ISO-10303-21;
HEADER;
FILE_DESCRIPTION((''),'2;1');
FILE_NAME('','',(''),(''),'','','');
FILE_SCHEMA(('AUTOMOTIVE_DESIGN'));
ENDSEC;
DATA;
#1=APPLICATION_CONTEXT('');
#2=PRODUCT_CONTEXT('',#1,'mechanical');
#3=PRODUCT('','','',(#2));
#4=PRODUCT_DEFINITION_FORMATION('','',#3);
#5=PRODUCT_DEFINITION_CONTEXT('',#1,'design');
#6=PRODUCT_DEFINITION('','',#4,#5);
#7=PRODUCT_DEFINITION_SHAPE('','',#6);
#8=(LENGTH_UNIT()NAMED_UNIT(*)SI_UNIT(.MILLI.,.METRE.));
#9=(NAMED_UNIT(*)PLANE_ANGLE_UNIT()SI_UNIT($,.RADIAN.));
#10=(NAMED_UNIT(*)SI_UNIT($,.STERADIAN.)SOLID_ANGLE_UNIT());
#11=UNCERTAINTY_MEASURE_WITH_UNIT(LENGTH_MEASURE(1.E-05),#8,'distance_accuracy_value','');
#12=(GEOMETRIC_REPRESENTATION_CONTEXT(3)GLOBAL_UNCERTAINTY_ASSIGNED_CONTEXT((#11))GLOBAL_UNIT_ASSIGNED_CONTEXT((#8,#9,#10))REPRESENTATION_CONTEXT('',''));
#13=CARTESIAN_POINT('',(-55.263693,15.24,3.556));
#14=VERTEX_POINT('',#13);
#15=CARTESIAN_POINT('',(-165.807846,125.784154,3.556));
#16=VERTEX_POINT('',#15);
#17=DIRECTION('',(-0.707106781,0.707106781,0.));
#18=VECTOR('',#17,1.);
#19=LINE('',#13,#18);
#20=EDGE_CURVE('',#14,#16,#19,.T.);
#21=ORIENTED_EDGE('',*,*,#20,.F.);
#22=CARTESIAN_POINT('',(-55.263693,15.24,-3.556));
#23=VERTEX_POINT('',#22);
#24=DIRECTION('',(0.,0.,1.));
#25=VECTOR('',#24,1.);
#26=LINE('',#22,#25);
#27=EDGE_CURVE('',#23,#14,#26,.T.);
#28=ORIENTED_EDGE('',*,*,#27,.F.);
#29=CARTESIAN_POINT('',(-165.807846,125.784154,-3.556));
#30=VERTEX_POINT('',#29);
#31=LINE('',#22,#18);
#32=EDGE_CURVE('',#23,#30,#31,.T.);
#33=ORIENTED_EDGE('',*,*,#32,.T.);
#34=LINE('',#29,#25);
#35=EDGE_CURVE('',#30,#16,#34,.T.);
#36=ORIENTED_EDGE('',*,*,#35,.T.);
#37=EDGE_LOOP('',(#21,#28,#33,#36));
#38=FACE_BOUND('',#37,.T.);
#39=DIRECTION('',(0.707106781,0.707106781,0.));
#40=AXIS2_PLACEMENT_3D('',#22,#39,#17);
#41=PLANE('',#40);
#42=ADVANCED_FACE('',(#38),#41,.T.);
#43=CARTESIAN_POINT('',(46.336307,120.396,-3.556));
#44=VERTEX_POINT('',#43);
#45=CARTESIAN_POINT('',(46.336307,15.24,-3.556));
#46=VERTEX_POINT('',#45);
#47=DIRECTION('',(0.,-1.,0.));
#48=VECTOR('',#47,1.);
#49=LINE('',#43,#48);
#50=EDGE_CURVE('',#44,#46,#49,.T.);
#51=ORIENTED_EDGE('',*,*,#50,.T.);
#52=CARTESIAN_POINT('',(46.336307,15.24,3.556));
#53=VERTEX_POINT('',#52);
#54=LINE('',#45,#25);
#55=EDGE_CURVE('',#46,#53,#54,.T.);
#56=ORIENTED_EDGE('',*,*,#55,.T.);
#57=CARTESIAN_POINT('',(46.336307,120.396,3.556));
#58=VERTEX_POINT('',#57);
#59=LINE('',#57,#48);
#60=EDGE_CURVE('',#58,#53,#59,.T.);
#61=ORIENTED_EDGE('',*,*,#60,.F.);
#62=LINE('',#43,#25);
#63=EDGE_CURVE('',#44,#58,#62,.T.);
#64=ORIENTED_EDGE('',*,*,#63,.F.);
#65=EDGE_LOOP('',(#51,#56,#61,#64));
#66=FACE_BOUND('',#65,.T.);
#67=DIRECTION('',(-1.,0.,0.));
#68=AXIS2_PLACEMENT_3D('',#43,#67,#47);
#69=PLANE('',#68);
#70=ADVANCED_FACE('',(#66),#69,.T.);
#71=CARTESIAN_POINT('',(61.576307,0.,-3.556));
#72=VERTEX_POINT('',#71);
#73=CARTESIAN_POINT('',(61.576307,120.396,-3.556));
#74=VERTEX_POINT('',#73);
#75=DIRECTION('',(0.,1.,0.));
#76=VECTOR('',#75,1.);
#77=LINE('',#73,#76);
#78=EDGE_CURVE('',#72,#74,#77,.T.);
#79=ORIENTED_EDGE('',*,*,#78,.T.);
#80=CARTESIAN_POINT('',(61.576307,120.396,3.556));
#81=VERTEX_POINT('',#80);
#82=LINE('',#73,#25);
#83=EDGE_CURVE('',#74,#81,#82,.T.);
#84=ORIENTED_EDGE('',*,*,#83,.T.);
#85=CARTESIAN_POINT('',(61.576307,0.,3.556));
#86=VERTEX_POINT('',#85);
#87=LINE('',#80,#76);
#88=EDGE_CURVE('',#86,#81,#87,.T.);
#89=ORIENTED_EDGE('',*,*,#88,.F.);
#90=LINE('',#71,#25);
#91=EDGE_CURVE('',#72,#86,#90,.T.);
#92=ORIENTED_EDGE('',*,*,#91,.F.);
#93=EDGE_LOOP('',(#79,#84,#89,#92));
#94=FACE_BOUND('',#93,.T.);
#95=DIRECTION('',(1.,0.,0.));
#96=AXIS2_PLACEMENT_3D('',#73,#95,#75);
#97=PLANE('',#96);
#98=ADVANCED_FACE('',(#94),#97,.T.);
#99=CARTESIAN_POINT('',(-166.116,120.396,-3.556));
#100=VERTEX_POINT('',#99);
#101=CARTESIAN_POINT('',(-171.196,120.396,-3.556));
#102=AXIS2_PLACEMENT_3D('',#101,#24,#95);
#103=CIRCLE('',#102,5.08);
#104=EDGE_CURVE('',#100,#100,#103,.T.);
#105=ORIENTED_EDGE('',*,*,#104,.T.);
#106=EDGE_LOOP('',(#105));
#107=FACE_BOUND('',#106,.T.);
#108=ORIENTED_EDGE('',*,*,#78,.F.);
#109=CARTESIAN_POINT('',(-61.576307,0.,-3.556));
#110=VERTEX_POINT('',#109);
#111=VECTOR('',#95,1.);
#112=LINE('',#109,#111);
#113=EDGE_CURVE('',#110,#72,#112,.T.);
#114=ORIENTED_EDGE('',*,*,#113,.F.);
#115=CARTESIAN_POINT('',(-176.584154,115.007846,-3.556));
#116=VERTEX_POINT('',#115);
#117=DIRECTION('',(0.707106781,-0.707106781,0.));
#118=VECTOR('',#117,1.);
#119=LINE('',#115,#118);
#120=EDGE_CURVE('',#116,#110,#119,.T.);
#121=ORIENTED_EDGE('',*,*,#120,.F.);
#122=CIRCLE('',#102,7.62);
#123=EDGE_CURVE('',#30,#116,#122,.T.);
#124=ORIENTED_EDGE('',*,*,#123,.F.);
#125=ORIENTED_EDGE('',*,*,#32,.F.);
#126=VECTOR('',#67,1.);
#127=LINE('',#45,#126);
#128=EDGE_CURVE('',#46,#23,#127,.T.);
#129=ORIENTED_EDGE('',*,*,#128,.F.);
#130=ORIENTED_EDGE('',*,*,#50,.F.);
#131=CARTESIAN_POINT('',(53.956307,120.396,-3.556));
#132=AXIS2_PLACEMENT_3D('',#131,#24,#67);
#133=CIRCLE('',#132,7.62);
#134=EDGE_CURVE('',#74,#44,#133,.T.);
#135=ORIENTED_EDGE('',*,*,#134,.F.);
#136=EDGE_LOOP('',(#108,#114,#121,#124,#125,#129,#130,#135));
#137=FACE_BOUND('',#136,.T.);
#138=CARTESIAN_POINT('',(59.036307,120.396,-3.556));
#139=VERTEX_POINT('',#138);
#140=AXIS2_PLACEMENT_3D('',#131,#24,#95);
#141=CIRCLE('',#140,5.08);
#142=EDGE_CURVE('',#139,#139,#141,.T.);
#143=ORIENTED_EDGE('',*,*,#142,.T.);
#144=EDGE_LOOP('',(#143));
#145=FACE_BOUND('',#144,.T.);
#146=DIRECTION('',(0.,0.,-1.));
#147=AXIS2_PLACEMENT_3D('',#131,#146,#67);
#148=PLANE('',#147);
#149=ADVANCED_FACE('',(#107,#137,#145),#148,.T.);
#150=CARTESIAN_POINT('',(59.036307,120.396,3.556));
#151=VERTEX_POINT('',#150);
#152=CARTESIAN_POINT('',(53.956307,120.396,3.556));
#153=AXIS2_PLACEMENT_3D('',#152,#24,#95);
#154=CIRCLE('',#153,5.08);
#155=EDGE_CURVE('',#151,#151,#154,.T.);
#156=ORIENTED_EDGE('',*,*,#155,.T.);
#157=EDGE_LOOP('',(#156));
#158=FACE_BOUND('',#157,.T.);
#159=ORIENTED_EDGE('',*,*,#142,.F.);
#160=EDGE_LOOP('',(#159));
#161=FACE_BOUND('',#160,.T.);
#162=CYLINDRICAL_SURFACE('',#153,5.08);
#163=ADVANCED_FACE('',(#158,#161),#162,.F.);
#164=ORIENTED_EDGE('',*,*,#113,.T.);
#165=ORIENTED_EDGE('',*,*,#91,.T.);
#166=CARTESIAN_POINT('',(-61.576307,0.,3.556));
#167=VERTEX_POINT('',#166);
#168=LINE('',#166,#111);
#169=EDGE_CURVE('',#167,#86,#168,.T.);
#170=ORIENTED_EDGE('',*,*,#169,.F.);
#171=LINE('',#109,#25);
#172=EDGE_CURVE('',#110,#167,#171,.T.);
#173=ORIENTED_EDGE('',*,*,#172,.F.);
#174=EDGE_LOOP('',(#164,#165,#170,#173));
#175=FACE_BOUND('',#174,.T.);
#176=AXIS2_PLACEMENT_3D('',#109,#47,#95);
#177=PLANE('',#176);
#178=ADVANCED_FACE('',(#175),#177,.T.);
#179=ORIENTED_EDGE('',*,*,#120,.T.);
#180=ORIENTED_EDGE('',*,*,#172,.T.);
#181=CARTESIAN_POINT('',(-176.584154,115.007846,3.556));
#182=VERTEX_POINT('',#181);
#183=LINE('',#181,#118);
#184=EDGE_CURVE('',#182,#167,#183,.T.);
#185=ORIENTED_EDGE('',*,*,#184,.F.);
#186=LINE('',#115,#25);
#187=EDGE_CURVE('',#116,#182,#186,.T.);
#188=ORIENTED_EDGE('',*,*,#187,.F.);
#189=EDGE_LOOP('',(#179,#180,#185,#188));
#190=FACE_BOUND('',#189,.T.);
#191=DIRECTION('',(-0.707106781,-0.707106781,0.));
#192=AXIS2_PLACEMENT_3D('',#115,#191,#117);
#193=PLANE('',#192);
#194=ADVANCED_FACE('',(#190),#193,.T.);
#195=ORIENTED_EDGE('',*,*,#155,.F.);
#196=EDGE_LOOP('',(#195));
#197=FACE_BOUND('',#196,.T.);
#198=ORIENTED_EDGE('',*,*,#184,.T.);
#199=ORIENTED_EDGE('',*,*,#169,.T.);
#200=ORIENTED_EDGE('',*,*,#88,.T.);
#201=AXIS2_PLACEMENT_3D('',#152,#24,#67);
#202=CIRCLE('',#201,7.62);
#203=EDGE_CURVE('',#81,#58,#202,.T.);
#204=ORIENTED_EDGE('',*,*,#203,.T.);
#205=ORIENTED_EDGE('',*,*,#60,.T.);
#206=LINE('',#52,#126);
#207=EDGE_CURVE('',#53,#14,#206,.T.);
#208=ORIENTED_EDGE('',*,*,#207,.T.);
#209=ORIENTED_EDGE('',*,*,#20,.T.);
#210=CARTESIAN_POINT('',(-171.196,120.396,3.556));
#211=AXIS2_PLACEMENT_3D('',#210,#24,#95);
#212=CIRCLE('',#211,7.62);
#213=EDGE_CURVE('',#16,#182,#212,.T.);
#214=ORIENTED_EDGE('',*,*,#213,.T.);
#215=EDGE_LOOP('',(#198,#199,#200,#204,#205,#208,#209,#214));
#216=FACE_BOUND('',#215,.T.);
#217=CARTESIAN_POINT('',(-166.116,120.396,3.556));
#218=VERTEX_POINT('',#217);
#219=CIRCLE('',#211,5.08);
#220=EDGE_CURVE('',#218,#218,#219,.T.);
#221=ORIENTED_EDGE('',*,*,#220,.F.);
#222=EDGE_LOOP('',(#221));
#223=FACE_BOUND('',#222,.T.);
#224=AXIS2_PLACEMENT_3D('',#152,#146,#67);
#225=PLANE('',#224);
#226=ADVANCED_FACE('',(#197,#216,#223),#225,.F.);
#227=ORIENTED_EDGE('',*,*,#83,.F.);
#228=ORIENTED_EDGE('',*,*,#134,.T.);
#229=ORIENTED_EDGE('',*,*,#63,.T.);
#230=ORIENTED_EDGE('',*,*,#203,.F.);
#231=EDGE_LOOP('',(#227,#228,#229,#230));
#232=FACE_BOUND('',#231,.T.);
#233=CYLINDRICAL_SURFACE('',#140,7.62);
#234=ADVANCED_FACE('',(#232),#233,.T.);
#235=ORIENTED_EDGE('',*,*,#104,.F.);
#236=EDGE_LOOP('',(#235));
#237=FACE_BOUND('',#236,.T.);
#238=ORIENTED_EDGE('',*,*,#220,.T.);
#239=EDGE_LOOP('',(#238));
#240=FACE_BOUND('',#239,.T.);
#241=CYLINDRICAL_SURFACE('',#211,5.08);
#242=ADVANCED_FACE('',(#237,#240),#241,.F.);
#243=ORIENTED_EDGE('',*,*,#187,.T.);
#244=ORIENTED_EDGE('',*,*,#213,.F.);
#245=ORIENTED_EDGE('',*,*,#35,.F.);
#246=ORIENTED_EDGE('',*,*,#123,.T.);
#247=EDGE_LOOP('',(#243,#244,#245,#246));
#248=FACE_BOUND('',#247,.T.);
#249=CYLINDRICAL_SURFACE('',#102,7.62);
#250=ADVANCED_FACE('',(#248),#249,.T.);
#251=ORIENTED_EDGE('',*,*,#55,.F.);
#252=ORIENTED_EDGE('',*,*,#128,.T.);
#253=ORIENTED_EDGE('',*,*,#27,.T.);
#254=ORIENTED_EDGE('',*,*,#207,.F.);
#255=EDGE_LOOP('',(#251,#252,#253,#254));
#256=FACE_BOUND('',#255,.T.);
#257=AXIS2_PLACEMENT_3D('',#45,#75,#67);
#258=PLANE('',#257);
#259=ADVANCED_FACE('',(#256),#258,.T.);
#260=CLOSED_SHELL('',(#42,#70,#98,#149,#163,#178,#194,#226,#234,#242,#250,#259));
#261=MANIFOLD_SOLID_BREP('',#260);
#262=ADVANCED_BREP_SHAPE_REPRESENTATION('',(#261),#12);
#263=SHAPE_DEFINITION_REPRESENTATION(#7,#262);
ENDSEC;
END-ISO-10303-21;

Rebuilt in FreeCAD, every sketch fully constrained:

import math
import FreeCAD as App
import Part
import Sketcher
from FreeCAD import Vector
Q = App.Units.Quantity

doc = App.newDocument("Part")
params = doc.addObject("Spreadsheet::Sheet", "Params")
for row, (alias, value) in enumerate([
    ("sketch1_radius", "0.3 in"),
    ("sketch1_width", "4 in"),
    ("sketch1_height", "4.14 in"),
    ("sketch1_height2", "4.74 in"),
    ("pad1_length", "0.14 in"),
    ("pad1_length2", "0.14 in"),
    ("sketch2_diameter", "0.4 in"),
    ("hole_diameter", "0.4 in"),
], start=1):
    params.set(f"A{row}", alias)
    params.set(f"B{row}", "=" + value)
    params.setAlias(f"B{row}", alias)

body = doc.addObject("PartDesign::Body", "Body")

sketch1 = body.newObject("Sketcher::SketchObject", "Sketch")
sketch1.AttachmentSupport = (doc.getObject("XY_Plane"), [""])
sketch1.MapMode = "FlatFace"
sketch1.addGeometry([
    Part.LineSegment(Vector(46.336307, 120.396, 0), Vector(46.336307, 15.24, 0)),
    Part.LineSegment(Vector(46.336307, 15.24, 0), Vector(-55.263693, 15.24, 0)),
    Part.LineSegment(Vector(-55.263693, 15.24, 0), Vector(-165.807846, 125.784154, 0)),
    Part.ArcOfCircle(Part.Circle(Vector(-171.196, 120.396, 0), Vector(0, 0, 1), 7.62), math.radians(45), math.radians(225)),
    Part.LineSegment(Vector(-176.584154, 115.007846, 0), Vector(-61.576307, 0, 0)),
    Part.LineSegment(Vector(-61.576307, 0, 0), Vector(61.576307, 0, 0)),
    Part.LineSegment(Vector(61.576307, 0, 0), Vector(61.576307, 120.396, 0)),
    Part.ArcOfCircle(Part.Circle(Vector(53.956307, 120.396, 0), Vector(0, 0, 1), 7.62), math.radians(0), math.radians(180)),
], False)
sketch1.addConstraint([
    Sketcher.Constraint("Coincident", 0, 2, 1, 1),
    Sketcher.Constraint("Coincident", 1, 2, 2, 1),
    Sketcher.Constraint("Tangent", 2, 2, 3, 1),
    Sketcher.Constraint("Tangent", 3, 2, 4, 1),
    Sketcher.Constraint("Coincident", 4, 2, 5, 1),
    Sketcher.Constraint("Coincident", 5, 2, 6, 1),
    Sketcher.Constraint("Tangent", 6, 2, 7, 1),
    Sketcher.Constraint("Tangent", 7, 2, 0, 1),
    Sketcher.Constraint("Vertical", 0),
    Sketcher.Constraint("Horizontal", 1),
    Sketcher.Constraint("Horizontal", 5),
    Sketcher.Constraint("Vertical", 6),
    Sketcher.Constraint("Equal", 3, 7),
    Sketcher.Constraint("Symmetric", 4, 2, 5, 2, -1, 1),
    Sketcher.Constraint("Parallel", 2, 4),
    Sketcher.Constraint("Horizontal", 3, 3, 7, 3),
    Sketcher.Constraint("Radius", 3, Q("0.3 in")),
    Sketcher.Constraint("DistanceX", 1, 2, 1, 1, Q("4 in")),
    Sketcher.Constraint("Angle", 2, Q("135 deg")),
    Sketcher.Constraint("DistanceY", 0, 2, 0, 1, Q("4.14 in")),
    Sketcher.Constraint("DistanceY", 6, 1, 6, 2, Q("4.74 in")),
])
sketch1.setExpression("Constraints[16]", "Params.sketch1_radius")
sketch1.setExpression("Constraints[17]", "Params.sketch1_width")
sketch1.setExpression("Constraints[19]", "Params.sketch1_height")
sketch1.setExpression("Constraints[20]", "Params.sketch1_height2")
pad1 = body.newObject("PartDesign::Pad", "Pad")
pad1.Profile = sketch1
pad1.Type = "TwoLengths"
pad1.setExpression("Length", "Params.pad1_length")
pad1.setExpression("Length2", "Params.pad1_length2")

sketch2 = body.newObject("Sketcher::SketchObject", "Sketch001")
sketch2.AttachmentSupport = (doc.getObject("XY_Plane"), [""])
sketch2.MapMode = "FlatFace"
sketch2.AttachmentOffset = App.Placement(Vector(0, 0, 0.14 * 25.4), App.Rotation())
sketch2.addGeometry([
    Part.Circle(Vector(-171.196, 120.396, 0), Vector(0, 0, 1), 5.08),
    Part.Circle(Vector(53.956307, 120.396, 0), Vector(0, 0, 1), 5.08),
], False)
sketch2.addConstraint([
    Sketcher.Constraint("Equal", 0, 1),
    Sketcher.Constraint("Horizontal", 0, 3, 1, 3),
    Sketcher.Constraint("Diameter", 0, Q("0.4 in")),
    Sketcher.Constraint("DistanceX", 0, 3, -1, 1, Q("6.74 in")),
    Sketcher.Constraint("DistanceY", -1, 1, 0, 3, Q("4.74 in")),
    Sketcher.Constraint("DistanceX", -1, 1, 1, 3, 53.956307),
])
sketch2.setExpression("Constraints[2]", "Params.sketch2_diameter")
doc.recompute()
hole = body.newObject("PartDesign::Hole", "Hole")
hole.Profile = sketch2
hole.ThreadType = "None"
hole.setExpression("Diameter", "Params.hole_diameter")
hole.DepthType = "ThroughAll"

doc.recompute()
